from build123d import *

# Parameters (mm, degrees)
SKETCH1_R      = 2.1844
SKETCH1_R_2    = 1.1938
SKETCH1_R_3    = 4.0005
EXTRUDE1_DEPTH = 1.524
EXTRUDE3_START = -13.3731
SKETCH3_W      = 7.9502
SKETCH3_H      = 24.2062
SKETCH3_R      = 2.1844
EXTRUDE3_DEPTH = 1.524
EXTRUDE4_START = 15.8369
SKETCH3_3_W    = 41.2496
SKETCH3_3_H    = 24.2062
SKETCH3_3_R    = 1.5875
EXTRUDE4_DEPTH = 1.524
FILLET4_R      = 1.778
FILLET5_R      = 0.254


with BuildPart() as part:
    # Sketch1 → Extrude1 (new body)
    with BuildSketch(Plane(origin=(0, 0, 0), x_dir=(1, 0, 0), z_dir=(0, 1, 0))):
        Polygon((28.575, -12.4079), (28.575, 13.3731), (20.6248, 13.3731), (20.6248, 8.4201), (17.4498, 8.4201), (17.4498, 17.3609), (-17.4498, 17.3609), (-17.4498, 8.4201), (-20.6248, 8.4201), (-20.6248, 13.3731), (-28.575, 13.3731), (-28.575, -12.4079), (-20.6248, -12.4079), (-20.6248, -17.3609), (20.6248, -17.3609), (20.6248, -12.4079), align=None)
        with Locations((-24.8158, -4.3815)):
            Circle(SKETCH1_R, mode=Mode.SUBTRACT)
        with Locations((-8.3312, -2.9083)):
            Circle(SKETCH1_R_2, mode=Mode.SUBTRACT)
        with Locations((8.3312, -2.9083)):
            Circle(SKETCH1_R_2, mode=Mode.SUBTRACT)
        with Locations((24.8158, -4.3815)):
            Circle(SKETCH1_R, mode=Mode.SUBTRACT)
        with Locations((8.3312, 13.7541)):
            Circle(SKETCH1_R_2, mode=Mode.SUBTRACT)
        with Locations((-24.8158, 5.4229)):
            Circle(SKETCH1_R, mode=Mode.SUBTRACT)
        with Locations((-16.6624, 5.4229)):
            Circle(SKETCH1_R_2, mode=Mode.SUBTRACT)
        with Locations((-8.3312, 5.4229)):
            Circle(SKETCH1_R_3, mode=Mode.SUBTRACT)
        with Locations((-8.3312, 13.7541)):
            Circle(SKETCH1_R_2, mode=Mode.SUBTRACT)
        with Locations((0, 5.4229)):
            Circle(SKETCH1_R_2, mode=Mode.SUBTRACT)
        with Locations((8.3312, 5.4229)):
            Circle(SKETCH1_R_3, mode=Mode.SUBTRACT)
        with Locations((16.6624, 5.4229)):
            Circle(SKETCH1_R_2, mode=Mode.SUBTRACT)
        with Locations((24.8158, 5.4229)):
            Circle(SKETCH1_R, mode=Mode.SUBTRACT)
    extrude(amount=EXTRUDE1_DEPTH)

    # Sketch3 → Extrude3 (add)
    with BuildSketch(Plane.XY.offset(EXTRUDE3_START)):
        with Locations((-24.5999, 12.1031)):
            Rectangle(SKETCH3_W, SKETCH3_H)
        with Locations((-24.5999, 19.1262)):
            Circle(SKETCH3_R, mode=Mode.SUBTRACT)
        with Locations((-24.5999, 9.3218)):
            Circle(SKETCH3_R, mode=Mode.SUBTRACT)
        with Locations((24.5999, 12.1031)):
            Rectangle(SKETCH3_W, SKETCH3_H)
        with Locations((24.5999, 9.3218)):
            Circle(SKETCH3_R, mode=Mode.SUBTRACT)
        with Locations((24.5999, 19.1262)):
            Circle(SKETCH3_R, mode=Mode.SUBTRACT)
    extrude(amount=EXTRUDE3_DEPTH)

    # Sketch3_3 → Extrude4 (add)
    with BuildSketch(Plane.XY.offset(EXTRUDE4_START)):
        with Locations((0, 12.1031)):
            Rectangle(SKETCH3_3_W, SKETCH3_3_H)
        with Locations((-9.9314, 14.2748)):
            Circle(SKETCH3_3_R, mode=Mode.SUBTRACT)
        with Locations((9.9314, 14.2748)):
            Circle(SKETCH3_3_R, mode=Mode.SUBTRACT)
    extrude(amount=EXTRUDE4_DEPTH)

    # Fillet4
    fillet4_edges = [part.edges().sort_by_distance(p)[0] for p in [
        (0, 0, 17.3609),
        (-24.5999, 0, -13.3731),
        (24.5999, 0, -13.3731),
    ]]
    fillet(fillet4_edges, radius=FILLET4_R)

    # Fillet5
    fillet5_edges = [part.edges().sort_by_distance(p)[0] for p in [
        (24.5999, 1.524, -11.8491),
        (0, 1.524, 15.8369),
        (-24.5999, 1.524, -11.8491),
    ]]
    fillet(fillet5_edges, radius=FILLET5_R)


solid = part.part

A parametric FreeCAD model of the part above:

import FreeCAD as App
import Part
import Sketcher
from FreeCAD import Vector
Q = App.Units.Quantity


def edges_at(feature, points):
    """Names of the edges that pass closest to the given points."""
    edges = feature.Shape.Edges
    near = lambda p: min(range(len(edges)), key=lambda i: edges[i].distToShape(Part.Vertex(*p))[0])
    return sorted({f"Edge{near(p) + 1}" for p in points})

doc = App.newDocument("Part")
body = doc.addObject("PartDesign::Body", "Body")

# Sketch on XZ plane
sketch1 = body.newObject("Sketcher::SketchObject", "Sketch")
sketch1.AttachmentSupport = (doc.getObject("XZ_Plane"), [""])
sketch1.MapMode = "FlatFace"
sketch1.addGeometry(Part.LineSegment(Vector(28.575, 12.4079, 0), Vector(28.575, -13.3731, 0)), False)
sketch1.addGeometry(Part.LineSegment(Vector(28.575, -13.3731, 0), Vector(20.6248, -13.3731, 0)), False)
sketch1.addGeometry(Part.LineSegment(Vector(20.6248, -13.3731, 0), Vector(20.6248, -8.4201, 0)), False)
sketch1.addGeometry(Part.LineSegment(Vector(20.6248, -8.4201, 0), Vector(17.4498, -8.4201, 0)), False)
sketch1.addGeometry(Part.LineSegment(Vector(17.4498, -8.4201, 0), Vector(17.4498, -17.3609, 0)), False)
sketch1.addGeometry(Part.LineSegment(Vector(17.4498, -17.3609, 0), Vector(-17.4498, -17.3609, 0)), False)
sketch1.addGeometry(Part.LineSegment(Vector(-17.4498, -17.3609, 0), Vector(-17.4498, -8.4201, 0)), False)
sketch1.addGeometry(Part.LineSegment(Vector(-17.4498, -8.4201, 0), Vector(-20.6248, -8.4201, 0)), False)
sketch1.addGeometry(Part.LineSegment(Vector(-20.6248, -8.4201, 0), Vector(-20.6248, -13.3731, 0)), False)
sketch1.addGeometry(Part.LineSegment(Vector(-20.6248, -13.3731, 0), Vector(-28.575, -13.3731, 0)), False)
sketch1.addGeometry(Part.LineSegment(Vector(-28.575, -13.3731, 0), Vector(-28.575, 12.4079, 0)), False)
sketch1.addGeometry(Part.LineSegment(Vector(-28.575, 12.4079, 0), Vector(-20.6248, 12.4079, 0)), False)
sketch1.addGeometry(Part.LineSegment(Vector(-20.6248, 12.4079, 0), Vector(-20.6248, 17.3609, 0)), False)
sketch1.addGeometry(Part.LineSegment(Vector(-20.6248, 17.3609, 0), Vector(20.6248, 17.3609, 0)), False)
sketch1.addGeometry(Part.LineSegment(Vector(20.6248, 17.3609, 0), Vector(20.6248, 12.4079, 0)), False)
sketch1.addGeometry(Part.LineSegment(Vector(20.6248, 12.4079, 0), Vector(28.575, 12.4079, 0)), False)
sketch1.addGeometry(Part.Circle(Vector(-24.8158, 4.3815, 0), Vector(0, 0, 1), 2.1844), False)
sketch1.addGeometry(Part.Circle(Vector(-8.3312, 2.9083, 0), Vector(0, 0, 1), 1.1938), False)
sketch1.addGeometry(Part.Circle(Vector(8.3312, 2.9083, 0), Vector(0, 0, 1), 1.1938), False)
sketch1.addGeometry(Part.Circle(Vector(24.8158, 4.3815, 0), Vector(0, 0, 1), 2.1844), False)
sketch1.addGeometry(Part.Circle(Vector(-24.8158, -5.4229, 0), Vector(0, 0, 1), 2.1844), False)
sketch1.addGeometry(Part.Circle(Vector(-16.6624, -5.4229, 0), Vector(0, 0, 1), 1.1938), False)
sketch1.addGeometry(Part.Circle(Vector(-8.3312, -5.4229, 0), Vector(0, 0, 1), 4.0005), False)
sketch1.addGeometry(Part.Circle(Vector(-8.3312, -13.7541, 0), Vector(0, 0, 1), 1.1938), False)
sketch1.addGeometry(Part.Circle(Vector(0, -5.4229, 0), Vector(0, 0, 1), 1.1938), False)
sketch1.addGeometry(Part.Circle(Vector(8.3312, -5.4229, 0), Vector(0, 0, 1), 4.0005), False)
sketch1.addGeometry(Part.Circle(Vector(16.6624, -5.4229, 0), Vector(0, 0, 1), 1.1938), False)
sketch1.addGeometry(Part.Circle(Vector(24.8158, -5.4229, 0), Vector(0, 0, 1), 2.1844), False)
sketch1.addGeometry(Part.Circle(Vector(8.3312, -13.7541, 0), Vector(0, 0, 1), 1.1938), False)
sketch1.addConstraint(Sketcher.Constraint("Coincident", 0, 2, 1, 1))
sketch1.addConstraint(Sketcher.Constraint("Coincident", 1, 2, 2, 1))
sketch1.addConstraint(Sketcher.Constraint("Coincident", 2, 2, 3, 1))
sketch1.addConstraint(Sketcher.Constraint("Coincident", 3, 2, 4, 1))
sketch1.addConstraint(Sketcher.Constraint("Coincident", 4, 2, 5, 1))
sketch1.addConstraint(Sketcher.Constraint("Coincident", 5, 2, 6, 1))
sketch1.addConstraint(Sketcher.Constraint("Coincident", 6, 2, 7, 1))
sketch1.addConstraint(Sketcher.Constraint("Coincident", 7, 2, 8, 1))
sketch1.addConstraint(Sketcher.Constraint("Coincident", 8, 2, 9, 1))
sketch1.addConstraint(Sketcher.Constraint("Coincident", 9, 2, 10, 1))
sketch1.addConstraint(Sketcher.Constraint("Coincident", 10, 2, 11, 1))
sketch1.addConstraint(Sketcher.Constraint("Coincident", 11, 2, 12, 1))
sketch1.addConstraint(Sketcher.Constraint("Coincident", 12, 2, 13, 1))
sketch1.addConstraint(Sketcher.Constraint("Coincident", 13, 2, 14, 1))
sketch1.addConstraint(Sketcher.Constraint("Coincident", 14, 2, 15, 1))
sketch1.addConstraint(Sketcher.Constraint("Coincident", 15, 2, 0, 1))
sketch1.addConstraint(Sketcher.Constraint("Vertical", 0))
sketch1.addConstraint(Sketcher.Constraint("Horizontal", 1))
sketch1.addConstraint(Sketcher.Constraint("Vertical", 2))
sketch1.addConstraint(Sketcher.Constraint("Horizontal", 3))
sketch1.addConstraint(Sketcher.Constraint("Vertical", 4))
sketch1.addConstraint(Sketcher.Constraint("Horizontal", 5))
sketch1.addConstraint(Sketcher.Constraint("Vertical", 6))
sketch1.addConstraint(Sketcher.Constraint("Horizontal", 7))
sketch1.addConstraint(Sketcher.Constraint("Vertical", 8))
sketch1.addConstraint(Sketcher.Constraint("Horizontal", 9))
sketch1.addConstraint(Sketcher.Constraint("Vertical", 10))
sketch1.addConstraint(Sketcher.Constraint("Horizontal", 11))
sketch1.addConstraint(Sketcher.Constraint("Vertical", 12))
sketch1.addConstraint(Sketcher.Constraint("Horizontal", 13))
sketch1.addConstraint(Sketcher.Constraint("Vertical", 14))
sketch1.addConstraint(Sketcher.Constraint("Horizontal", 15))
sketch1.addConstraint(Sketcher.Constraint("Equal", 17, 18))
sketch1.addConstraint(Sketcher.Constraint("Equal", 16, 19))
sketch1.addConstraint(Sketcher.Constraint("Equal", 19, 20))
sketch1.addConstraint(Sketcher.Constraint("Equal", 18, 21))
sketch1.addConstraint(Sketcher.Constraint("Equal", 21, 23))
sketch1.addConstraint(Sketcher.Constraint("Equal", 23, 24))
sketch1.addConstraint(Sketcher.Constraint("Equal", 22, 25))
sketch1.addConstraint(Sketcher.Constraint("Equal", 24, 26))
sketch1.addConstraint(Sketcher.Constraint("Equal", 20, 27))
sketch1.addConstraint(Sketcher.Constraint("Equal", 26, 28))
sketch1.addConstraint(Sketcher.Constraint("Symmetric", 17, 3, 18, 3, -2))
sketch1.addConstraint(Sketcher.Constraint("Symmetric", 16, 3, 19, 3, -2))
sketch1.addConstraint(Sketcher.Constraint("Symmetric", 22, 3, 25, 3, -2))
sketch1.addConstraint(Sketcher.Constraint("Symmetric", 21, 3, 26, 3, -2))
sketch1.addConstraint(Sketcher.Constraint("Symmetric", 20, 3, 27, 3, -2))
sketch1.addConstraint(Sketcher.Constraint("Symmetric", 23, 3, 28, 3, -2))
sketch1.addConstraint(Sketcher.Constraint("Symmetric", 3, 2, 6, 2, -2))
sketch1.addConstraint(Sketcher.Constraint("Symmetric", 1, 2, 8, 2, -2))
sketch1.addConstraint(Sketcher.Constraint("Symmetric", 11, 2, 14, 2, -2))
sketch1.addConstraint(Sketcher.Constraint("PointOnObject", 24, 3, -2))
sketch1.addConstraint(Sketcher.Constraint("Horizontal", 20, 3, 21, 3))
sketch1.addConstraint(Sketcher.Constraint("Horizontal", 21, 3, 22, 3))
sketch1.addConstraint(Sketcher.Constraint("Horizontal", 22, 3, 24, 3))
sketch1.addConstraint(Sketcher.Constraint("Vertical", 16, 3, 20, 3))
sketch1.addConstraint(Sketcher.Constraint("Vertical", 17, 3, 22, 3))
sketch1.addConstraint(Sketcher.Constraint("Vertical", 22, 3, 23, 3))
sketch1.addConstraint(Sketcher.Constraint("Vertical", 8, 2, 11, 2))
sketch1.addConstraint(Sketcher.Constraint("Equal", 1, 9))
sketch1.addConstraint(Sketcher.Constraint("Equal", 8, 12))
sketch1.addConstraint(Sketcher.Constraint("Diameter", 16, Q("0.172 in")))
sketch1.addConstraint(Sketcher.Constraint("Diameter", 17, Q("0.094 in")))
sketch1.addConstraint(Sketcher.Constraint("Diameter", 22, Q("0.315 in")))
sketch1.addConstraint(Sketcher.Constraint("DistanceX", 1, 2, 1, 1, Q("0.313 in")))
sketch1.addConstraint(Sketcher.Constraint("DistanceX", 3, 2, 3, 1, Q("0.125 in")))
sketch1.addConstraint(Sketcher.Constraint("DistanceX", 5, 2, 5, 1, Q("1.374 in")))
sketch1.addConstraint(Sketcher.Constraint("DistanceY", 0, 2, 0, 1, Q("1.015 in")))
sketch1.addConstraint(Sketcher.Constraint("DistanceY", 2, 1, 2, 2, Q("0.195 in")))
sketch1.addConstraint(Sketcher.Constraint("DistanceY", 4, 2, 4, 1, Q("0.352 in")))
sketch1.addConstraint(Sketcher.Constraint("DistanceX", 3, 2, 27, 3, Q("0.29 in")))
sketch1.addConstraint(Sketcher.Constraint("DistanceY", 5, 2, 21, 3, Q("0.47 in")))
sketch1.addConstraint(Sketcher.Constraint("DistanceY", 23, 3, 6, 2, Q("0.21 in")))
sketch1.addConstraint(Sketcher.Constraint("DistanceX", 17, 3, -1, 1, Q("0.328 in")))
sketch1.addConstraint(Sketcher.Constraint("DistanceX", 21, 3, -1, 1, Q("0.656 in")))
sketch1.addConstraint(Sketcher.Constraint("DistanceY", 17, 3, 16, 3, Q("0.058 in")))
sketch1.addConstraint(Sketcher.Constraint("DistanceY", 20, 3, 16, 3, Q("0.386 in")))
sketch1.addConstraint(Sketcher.Constraint("DistanceY", -1, 1, 16, 3, Q("0.1725 in")))
pad1 = body.newObject("PartDesign::Pad", "Pad")
pad1.Profile = sketch1
pad1.Length = Q("0.06 in")
pad1.Reversed = True

# Sketch on XY plane
sketch2 = body.newObject("Sketcher::SketchObject", "Sketch001")
sketch2.AttachmentSupport = (doc.getObject("XY_Plane"), [""])
sketch2.MapMode = "FlatFace"
sketch2.AttachmentOffset = App.Placement(Vector(0, 0, -0.5265 * 25.4), App.Rotation())
sketch2.addGeometry(Part.LineSegment(Vector(-28.575, 24.2062, 0), Vector(-28.575, 0, 0)), False)
sketch2.addGeometry(Part.LineSegment(Vector(-28.575, 0, 0), Vector(-20.6248, 0, 0)), False)
sketch2.addGeometry(Part.LineSegment(Vector(-20.6248, 0, 0), Vector(-20.6248, 24.2062, 0)), False)
sketch2.addGeometry(Part.LineSegment(Vector(-20.6248, 24.2062, 0), Vector(-28.575, 24.2062, 0)), False)
sketch2.addGeometry(Part.Circle(Vector(-24.5999, 9.3218, 0), Vector(0, 0, 1), 2.1844), False)
sketch2.addGeometry(Part.Circle(Vector(-24.5999, 19.1262, 0), Vector(0, 0, 1), 2.1844), False)
sketch2.addGeometry(Part.LineSegment(Vector(20.6248, 24.2062, 0), Vector(20.6248, 0, 0)), False)
sketch2.addGeometry(Part.LineSegment(Vector(20.6248, 0, 0), Vector(28.575, 0, 0)), False)
sketch2.addGeometry(Part.LineSegment(Vector(28.575, 0, 0), Vector(28.575, 24.2062, 0)), False)
sketch2.addGeometry(Part.LineSegment(Vector(28.575, 24.2062, 0), Vector(20.6248, 24.2062, 0)), False)
sketch2.addGeometry(Part.Circle(Vector(24.5999, 9.3218, 0), Vector(0, 0, 1), 2.1844), False)
sketch2.addGeometry(Part.Circle(Vector(24.5999, 19.1262, 0), Vector(0, 0, 1), 2.1844), False)
sketch2.addConstraint(Sketcher.Constraint("Coincident", 0, 2, 1, 1))
sketch2.addConstraint(Sketcher.Constraint("Coincident", 1, 2, 2, 1))
sketch2.addConstraint(Sketcher.Constraint("Coincident", 2, 2, 3, 1))
sketch2.addConstraint(Sketcher.Constraint("Coincident", 3, 2, 0, 1))
sketch2.addConstraint(Sketcher.Constraint("Coincident", 6, 2, 7, 1))
sketch2.addConstraint(Sketcher.Constraint("Coincident", 7, 2, 8, 1))
sketch2.addConstraint(Sketcher.Constraint("Coincident", 8, 2, 9, 1))
sketch2.addConstraint(Sketcher.Constraint("Coincident", 9, 2, 6, 1))
sketch2.addConstraint(Sketcher.Constraint("Vertical", 0))
sketch2.addConstraint(Sketcher.Constraint("Horizontal", 1))
sketch2.addConstraint(Sketcher.Constraint("Vertical", 2))
sketch2.addConstraint(Sketcher.Constraint("Horizontal", 3))
sketch2.addConstraint(Sketcher.Constraint("Vertical", 6))
sketch2.addConstraint(Sketcher.Constraint("Horizontal", 7))
sketch2.addConstraint(Sketcher.Constraint("Vertical", 8))
sketch2.addConstraint(Sketcher.Constraint("Horizontal", 9))
sketch2.addConstraint(Sketcher.Constraint("Equal", 4, 5))
sketch2.addConstraint(Sketcher.Constraint("Equal", 5, 10))
sketch2.addConstraint(Sketcher.Constraint("Equal", 10, 11))
sketch2.addConstraint(Sketcher.Constraint("Symmetric", 1, 2, 6, 2, -1, 1))
sketch2.addConstraint(Sketcher.Constraint("Symmetric", 4, 3, 10, 3, -2))
sketch2.addConstraint(Sketcher.Constraint("Symmetric", 5, 3, 11, 3, -2))
sketch2.addConstraint(Sketcher.Constraint("Symmetric", 0, 2, 7, 2, -2))
sketch2.addConstraint(Sketcher.Constraint("Horizontal", 3, 2, 8, 2))
sketch2.addConstraint(Sketcher.Constraint("Vertical", 4, 3, 5, 3))
sketch2.addConstraint(Sketcher.Constraint("Diameter", 4, Q("0.172 in")))
sketch2.addConstraint(Sketcher.Constraint("DistanceY", 5, 3, 2, 2, Q("0.2 in")))
sketch2.addConstraint(Sketcher.Constraint("DistanceX", 1, 1, 1, 2, Q("0.313 in")))
sketch2.addConstraint(Sketcher.Constraint("DistanceY", 0, 2, 0, 1, Q("0.953 in")))
sketch2.addConstraint(Sketcher.Constraint("DistanceY", -1, 1, 4, 3, Q("0.367 in")))
sketch2.addConstraint(Sketcher.Constraint("DistanceX", 0, 2, -1, 1, Q("1.125 in")))
sketch2.addConstraint(Sketcher.Constraint("DistanceX", 4, 3, 10, 3, Q("1.937 in")))
pad2 = body.newObject("PartDesign::Pad", "Pad001")
pad2.Profile = sketch2
pad2.Length = Q("0.06 in")

# Sketch on XY plane
sketch3 = body.newObject("Sketcher::SketchObject", "Sketch002")
sketch3.AttachmentSupport = (doc.getObject("XY_Plane"), [""])
sketch3.MapMode = "FlatFace"
sketch3.AttachmentOffset = App.Placement(Vector(0, 0, 0.6235 * 25.4), App.Rotation())
sketch3.addGeometry(Part.LineSegment(Vector(-20.6248, 24.2062, 0), Vector(-20.6248, 0, 0)), False)
sketch3.addGeometry(Part.LineSegment(Vector(-20.6248, 0, 0), Vector(20.6248, 0, 0)), False)
sketch3.addGeometry(Part.LineSegment(Vector(20.6248, 0, 0), Vector(20.6248, 24.2062, 0)), False)
sketch3.addGeometry(Part.LineSegment(Vector(20.6248, 24.2062, 0), Vector(-20.6248, 24.2062, 0)), False)
sketch3.addGeometry(Part.Circle(Vector(-9.9314, 14.2748, 0), Vector(0, 0, 1), 1.5875), False)
sketch3.addGeometry(Part.Circle(Vector(9.9314, 14.2748, 0), Vector(0, 0, 1), 1.5875), False)
sketch3.addConstraint(Sketcher.Constraint("Coincident", 0, 2, 1, 1))
sketch3.addConstraint(Sketcher.Constraint("Coincident", 1, 2, 2, 1))
sketch3.addConstraint(Sketcher.Constraint("Coincident", 2, 2, 3, 1))
sketch3.addConstraint(Sketcher.Constraint("Coincident", 3, 2, 0, 1))
sketch3.addConstraint(Sketcher.Constraint("Vertical", 0))
sketch3.addConstraint(Sketcher.Constraint("Horizontal", 1))
sketch3.addConstraint(Sketcher.Constraint("Vertical", 2))
sketch3.addConstraint(Sketcher.Constraint("Horizontal", 3))
sketch3.addConstraint(Sketcher.Constraint("Equal", 4, 5))
sketch3.addConstraint(Sketcher.Constraint("Symmetric", 0, 2, 1, 2, -1, 1))
sketch3.addConstraint(Sketcher.Constraint("Symmetric", 4, 3, 5, 3, -2))
sketch3.addConstraint(Sketcher.Constraint("Diameter", 4, Q("0.125 in")))
sketch3.addConstraint(Sketcher.Constraint("DistanceX", 1, 1, 1, 2, Q("1.624 in")))
sketch3.addConstraint(Sketcher.Constraint("DistanceY", 0, 2, 0, 1, Q("0.953 in")))
sketch3.addConstraint(Sketcher.Constraint("DistanceX", 4, 3, -1, 1, Q("0.391 in")))
sketch3.addConstraint(Sketcher.Constraint("DistanceY", -1, 1, 4, 3, Q("0.562 in")))
pad3 = body.newObject("PartDesign::Pad", "Pad002")
pad3.Profile = sketch3
pad3.Length = Q("0.06 in")
doc.recompute()

fillet = body.newObject("PartDesign::Fillet", "Fillet")
fillet.Base = (pad3, edges_at(pad3, [(0, 0, 17.361), (-24.6, 0, -13.373), (24.6, 0, -13.373)]))
fillet.Radius = Q("0.07 in")
doc.recompute()

fillet2 = body.newObject("PartDesign::Fillet", "Fillet001")
fillet2.Base = (fillet, edges_at(fillet, [(24.6, 1.524, -11.849), (0, 1.524, 15.837), (-24.6, 1.524, -11.849)]))
fillet2.Radius = Q("0.01 in")

doc.recompute()
